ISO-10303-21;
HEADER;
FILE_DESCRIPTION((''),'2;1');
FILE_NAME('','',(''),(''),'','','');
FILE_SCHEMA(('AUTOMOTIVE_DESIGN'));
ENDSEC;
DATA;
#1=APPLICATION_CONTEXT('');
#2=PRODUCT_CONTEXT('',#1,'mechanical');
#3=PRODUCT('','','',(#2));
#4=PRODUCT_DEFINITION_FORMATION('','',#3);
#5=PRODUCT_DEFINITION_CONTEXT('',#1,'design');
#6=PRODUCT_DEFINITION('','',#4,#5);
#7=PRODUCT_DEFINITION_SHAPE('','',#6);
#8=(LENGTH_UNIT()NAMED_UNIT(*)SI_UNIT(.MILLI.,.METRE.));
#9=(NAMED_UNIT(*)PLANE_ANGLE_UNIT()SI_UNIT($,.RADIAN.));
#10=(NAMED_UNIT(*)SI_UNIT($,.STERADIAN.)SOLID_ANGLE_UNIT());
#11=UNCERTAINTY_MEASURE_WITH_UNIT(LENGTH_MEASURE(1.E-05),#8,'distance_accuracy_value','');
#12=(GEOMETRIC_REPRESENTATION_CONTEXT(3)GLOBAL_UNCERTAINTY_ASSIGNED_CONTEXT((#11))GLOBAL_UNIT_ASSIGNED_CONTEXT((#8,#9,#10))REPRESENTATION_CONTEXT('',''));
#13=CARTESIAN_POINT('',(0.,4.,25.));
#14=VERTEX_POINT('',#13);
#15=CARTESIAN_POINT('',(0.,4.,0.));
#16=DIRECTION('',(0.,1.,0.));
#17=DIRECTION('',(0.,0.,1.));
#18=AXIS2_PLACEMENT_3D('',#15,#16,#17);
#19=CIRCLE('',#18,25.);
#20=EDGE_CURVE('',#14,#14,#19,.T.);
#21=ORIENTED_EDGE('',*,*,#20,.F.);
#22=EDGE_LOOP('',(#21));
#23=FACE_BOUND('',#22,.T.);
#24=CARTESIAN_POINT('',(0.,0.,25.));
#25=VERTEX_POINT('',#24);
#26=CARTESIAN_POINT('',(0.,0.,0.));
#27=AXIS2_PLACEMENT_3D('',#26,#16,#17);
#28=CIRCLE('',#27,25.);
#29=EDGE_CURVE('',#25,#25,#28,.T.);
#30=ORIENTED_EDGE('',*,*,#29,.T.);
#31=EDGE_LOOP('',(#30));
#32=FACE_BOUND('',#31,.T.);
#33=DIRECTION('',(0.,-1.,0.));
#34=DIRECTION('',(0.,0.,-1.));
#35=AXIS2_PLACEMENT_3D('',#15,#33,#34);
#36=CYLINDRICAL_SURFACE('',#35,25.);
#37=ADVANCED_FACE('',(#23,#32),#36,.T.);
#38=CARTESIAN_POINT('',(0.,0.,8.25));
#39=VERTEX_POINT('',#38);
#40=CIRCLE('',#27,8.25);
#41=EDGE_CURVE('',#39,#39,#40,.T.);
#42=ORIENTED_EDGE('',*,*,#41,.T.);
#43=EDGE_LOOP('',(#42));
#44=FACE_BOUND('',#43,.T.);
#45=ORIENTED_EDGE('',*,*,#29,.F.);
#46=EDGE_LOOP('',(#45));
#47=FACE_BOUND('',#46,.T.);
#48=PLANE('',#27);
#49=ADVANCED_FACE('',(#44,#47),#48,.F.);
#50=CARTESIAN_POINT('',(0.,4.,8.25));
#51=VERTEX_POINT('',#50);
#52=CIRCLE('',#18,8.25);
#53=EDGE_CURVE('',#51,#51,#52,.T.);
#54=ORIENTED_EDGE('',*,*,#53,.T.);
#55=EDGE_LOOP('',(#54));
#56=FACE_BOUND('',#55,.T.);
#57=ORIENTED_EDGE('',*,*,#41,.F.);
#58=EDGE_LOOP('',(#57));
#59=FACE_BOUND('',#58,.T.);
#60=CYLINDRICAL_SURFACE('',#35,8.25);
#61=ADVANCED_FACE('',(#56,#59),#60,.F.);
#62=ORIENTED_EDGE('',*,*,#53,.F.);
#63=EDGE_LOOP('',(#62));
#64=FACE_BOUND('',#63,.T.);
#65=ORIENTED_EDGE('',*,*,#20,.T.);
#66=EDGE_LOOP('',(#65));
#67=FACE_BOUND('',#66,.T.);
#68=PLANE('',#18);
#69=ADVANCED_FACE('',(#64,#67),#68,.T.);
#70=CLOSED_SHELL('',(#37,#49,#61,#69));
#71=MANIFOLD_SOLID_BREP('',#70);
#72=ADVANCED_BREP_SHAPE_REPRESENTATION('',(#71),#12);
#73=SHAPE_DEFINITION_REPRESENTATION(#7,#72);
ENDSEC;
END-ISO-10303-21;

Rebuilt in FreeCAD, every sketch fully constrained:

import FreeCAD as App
import Part
import Sketcher
from FreeCAD import Vector

doc = App.newDocument("Part")
body = doc.addObject("PartDesign::Body", "Body")

# Sketch on XZ plane
sketch1 = body.newObject("Sketcher::SketchObject", "Sketch")
sketch1.AttachmentSupport = (doc.getObject("XZ_Plane"), [""])
sketch1.MapMode = "FlatFace"
sketch1.addGeometry([
    Part.Circle(Vector(0, 0, 0), Vector(0, 0, 1), 25),
    Part.Circle(Vector(0, 0, 0), Vector(0, 0, 1), 8),
], False)
sketch1.addConstraint([
    Sketcher.Constraint("Coincident", 0, 3, -1, 1),
    Sketcher.Constraint("Coincident", 1, 3, -1, 1),
    Sketcher.Constraint("Diameter", 0, 50.0),
    Sketcher.Constraint("Diameter", 1, 16.5),
])
pad1 = body.newObject("PartDesign::Pad", "Pad")
pad1.Profile = sketch1
pad1.Length = 4
pad1.Reversed = True

doc.recompute()
